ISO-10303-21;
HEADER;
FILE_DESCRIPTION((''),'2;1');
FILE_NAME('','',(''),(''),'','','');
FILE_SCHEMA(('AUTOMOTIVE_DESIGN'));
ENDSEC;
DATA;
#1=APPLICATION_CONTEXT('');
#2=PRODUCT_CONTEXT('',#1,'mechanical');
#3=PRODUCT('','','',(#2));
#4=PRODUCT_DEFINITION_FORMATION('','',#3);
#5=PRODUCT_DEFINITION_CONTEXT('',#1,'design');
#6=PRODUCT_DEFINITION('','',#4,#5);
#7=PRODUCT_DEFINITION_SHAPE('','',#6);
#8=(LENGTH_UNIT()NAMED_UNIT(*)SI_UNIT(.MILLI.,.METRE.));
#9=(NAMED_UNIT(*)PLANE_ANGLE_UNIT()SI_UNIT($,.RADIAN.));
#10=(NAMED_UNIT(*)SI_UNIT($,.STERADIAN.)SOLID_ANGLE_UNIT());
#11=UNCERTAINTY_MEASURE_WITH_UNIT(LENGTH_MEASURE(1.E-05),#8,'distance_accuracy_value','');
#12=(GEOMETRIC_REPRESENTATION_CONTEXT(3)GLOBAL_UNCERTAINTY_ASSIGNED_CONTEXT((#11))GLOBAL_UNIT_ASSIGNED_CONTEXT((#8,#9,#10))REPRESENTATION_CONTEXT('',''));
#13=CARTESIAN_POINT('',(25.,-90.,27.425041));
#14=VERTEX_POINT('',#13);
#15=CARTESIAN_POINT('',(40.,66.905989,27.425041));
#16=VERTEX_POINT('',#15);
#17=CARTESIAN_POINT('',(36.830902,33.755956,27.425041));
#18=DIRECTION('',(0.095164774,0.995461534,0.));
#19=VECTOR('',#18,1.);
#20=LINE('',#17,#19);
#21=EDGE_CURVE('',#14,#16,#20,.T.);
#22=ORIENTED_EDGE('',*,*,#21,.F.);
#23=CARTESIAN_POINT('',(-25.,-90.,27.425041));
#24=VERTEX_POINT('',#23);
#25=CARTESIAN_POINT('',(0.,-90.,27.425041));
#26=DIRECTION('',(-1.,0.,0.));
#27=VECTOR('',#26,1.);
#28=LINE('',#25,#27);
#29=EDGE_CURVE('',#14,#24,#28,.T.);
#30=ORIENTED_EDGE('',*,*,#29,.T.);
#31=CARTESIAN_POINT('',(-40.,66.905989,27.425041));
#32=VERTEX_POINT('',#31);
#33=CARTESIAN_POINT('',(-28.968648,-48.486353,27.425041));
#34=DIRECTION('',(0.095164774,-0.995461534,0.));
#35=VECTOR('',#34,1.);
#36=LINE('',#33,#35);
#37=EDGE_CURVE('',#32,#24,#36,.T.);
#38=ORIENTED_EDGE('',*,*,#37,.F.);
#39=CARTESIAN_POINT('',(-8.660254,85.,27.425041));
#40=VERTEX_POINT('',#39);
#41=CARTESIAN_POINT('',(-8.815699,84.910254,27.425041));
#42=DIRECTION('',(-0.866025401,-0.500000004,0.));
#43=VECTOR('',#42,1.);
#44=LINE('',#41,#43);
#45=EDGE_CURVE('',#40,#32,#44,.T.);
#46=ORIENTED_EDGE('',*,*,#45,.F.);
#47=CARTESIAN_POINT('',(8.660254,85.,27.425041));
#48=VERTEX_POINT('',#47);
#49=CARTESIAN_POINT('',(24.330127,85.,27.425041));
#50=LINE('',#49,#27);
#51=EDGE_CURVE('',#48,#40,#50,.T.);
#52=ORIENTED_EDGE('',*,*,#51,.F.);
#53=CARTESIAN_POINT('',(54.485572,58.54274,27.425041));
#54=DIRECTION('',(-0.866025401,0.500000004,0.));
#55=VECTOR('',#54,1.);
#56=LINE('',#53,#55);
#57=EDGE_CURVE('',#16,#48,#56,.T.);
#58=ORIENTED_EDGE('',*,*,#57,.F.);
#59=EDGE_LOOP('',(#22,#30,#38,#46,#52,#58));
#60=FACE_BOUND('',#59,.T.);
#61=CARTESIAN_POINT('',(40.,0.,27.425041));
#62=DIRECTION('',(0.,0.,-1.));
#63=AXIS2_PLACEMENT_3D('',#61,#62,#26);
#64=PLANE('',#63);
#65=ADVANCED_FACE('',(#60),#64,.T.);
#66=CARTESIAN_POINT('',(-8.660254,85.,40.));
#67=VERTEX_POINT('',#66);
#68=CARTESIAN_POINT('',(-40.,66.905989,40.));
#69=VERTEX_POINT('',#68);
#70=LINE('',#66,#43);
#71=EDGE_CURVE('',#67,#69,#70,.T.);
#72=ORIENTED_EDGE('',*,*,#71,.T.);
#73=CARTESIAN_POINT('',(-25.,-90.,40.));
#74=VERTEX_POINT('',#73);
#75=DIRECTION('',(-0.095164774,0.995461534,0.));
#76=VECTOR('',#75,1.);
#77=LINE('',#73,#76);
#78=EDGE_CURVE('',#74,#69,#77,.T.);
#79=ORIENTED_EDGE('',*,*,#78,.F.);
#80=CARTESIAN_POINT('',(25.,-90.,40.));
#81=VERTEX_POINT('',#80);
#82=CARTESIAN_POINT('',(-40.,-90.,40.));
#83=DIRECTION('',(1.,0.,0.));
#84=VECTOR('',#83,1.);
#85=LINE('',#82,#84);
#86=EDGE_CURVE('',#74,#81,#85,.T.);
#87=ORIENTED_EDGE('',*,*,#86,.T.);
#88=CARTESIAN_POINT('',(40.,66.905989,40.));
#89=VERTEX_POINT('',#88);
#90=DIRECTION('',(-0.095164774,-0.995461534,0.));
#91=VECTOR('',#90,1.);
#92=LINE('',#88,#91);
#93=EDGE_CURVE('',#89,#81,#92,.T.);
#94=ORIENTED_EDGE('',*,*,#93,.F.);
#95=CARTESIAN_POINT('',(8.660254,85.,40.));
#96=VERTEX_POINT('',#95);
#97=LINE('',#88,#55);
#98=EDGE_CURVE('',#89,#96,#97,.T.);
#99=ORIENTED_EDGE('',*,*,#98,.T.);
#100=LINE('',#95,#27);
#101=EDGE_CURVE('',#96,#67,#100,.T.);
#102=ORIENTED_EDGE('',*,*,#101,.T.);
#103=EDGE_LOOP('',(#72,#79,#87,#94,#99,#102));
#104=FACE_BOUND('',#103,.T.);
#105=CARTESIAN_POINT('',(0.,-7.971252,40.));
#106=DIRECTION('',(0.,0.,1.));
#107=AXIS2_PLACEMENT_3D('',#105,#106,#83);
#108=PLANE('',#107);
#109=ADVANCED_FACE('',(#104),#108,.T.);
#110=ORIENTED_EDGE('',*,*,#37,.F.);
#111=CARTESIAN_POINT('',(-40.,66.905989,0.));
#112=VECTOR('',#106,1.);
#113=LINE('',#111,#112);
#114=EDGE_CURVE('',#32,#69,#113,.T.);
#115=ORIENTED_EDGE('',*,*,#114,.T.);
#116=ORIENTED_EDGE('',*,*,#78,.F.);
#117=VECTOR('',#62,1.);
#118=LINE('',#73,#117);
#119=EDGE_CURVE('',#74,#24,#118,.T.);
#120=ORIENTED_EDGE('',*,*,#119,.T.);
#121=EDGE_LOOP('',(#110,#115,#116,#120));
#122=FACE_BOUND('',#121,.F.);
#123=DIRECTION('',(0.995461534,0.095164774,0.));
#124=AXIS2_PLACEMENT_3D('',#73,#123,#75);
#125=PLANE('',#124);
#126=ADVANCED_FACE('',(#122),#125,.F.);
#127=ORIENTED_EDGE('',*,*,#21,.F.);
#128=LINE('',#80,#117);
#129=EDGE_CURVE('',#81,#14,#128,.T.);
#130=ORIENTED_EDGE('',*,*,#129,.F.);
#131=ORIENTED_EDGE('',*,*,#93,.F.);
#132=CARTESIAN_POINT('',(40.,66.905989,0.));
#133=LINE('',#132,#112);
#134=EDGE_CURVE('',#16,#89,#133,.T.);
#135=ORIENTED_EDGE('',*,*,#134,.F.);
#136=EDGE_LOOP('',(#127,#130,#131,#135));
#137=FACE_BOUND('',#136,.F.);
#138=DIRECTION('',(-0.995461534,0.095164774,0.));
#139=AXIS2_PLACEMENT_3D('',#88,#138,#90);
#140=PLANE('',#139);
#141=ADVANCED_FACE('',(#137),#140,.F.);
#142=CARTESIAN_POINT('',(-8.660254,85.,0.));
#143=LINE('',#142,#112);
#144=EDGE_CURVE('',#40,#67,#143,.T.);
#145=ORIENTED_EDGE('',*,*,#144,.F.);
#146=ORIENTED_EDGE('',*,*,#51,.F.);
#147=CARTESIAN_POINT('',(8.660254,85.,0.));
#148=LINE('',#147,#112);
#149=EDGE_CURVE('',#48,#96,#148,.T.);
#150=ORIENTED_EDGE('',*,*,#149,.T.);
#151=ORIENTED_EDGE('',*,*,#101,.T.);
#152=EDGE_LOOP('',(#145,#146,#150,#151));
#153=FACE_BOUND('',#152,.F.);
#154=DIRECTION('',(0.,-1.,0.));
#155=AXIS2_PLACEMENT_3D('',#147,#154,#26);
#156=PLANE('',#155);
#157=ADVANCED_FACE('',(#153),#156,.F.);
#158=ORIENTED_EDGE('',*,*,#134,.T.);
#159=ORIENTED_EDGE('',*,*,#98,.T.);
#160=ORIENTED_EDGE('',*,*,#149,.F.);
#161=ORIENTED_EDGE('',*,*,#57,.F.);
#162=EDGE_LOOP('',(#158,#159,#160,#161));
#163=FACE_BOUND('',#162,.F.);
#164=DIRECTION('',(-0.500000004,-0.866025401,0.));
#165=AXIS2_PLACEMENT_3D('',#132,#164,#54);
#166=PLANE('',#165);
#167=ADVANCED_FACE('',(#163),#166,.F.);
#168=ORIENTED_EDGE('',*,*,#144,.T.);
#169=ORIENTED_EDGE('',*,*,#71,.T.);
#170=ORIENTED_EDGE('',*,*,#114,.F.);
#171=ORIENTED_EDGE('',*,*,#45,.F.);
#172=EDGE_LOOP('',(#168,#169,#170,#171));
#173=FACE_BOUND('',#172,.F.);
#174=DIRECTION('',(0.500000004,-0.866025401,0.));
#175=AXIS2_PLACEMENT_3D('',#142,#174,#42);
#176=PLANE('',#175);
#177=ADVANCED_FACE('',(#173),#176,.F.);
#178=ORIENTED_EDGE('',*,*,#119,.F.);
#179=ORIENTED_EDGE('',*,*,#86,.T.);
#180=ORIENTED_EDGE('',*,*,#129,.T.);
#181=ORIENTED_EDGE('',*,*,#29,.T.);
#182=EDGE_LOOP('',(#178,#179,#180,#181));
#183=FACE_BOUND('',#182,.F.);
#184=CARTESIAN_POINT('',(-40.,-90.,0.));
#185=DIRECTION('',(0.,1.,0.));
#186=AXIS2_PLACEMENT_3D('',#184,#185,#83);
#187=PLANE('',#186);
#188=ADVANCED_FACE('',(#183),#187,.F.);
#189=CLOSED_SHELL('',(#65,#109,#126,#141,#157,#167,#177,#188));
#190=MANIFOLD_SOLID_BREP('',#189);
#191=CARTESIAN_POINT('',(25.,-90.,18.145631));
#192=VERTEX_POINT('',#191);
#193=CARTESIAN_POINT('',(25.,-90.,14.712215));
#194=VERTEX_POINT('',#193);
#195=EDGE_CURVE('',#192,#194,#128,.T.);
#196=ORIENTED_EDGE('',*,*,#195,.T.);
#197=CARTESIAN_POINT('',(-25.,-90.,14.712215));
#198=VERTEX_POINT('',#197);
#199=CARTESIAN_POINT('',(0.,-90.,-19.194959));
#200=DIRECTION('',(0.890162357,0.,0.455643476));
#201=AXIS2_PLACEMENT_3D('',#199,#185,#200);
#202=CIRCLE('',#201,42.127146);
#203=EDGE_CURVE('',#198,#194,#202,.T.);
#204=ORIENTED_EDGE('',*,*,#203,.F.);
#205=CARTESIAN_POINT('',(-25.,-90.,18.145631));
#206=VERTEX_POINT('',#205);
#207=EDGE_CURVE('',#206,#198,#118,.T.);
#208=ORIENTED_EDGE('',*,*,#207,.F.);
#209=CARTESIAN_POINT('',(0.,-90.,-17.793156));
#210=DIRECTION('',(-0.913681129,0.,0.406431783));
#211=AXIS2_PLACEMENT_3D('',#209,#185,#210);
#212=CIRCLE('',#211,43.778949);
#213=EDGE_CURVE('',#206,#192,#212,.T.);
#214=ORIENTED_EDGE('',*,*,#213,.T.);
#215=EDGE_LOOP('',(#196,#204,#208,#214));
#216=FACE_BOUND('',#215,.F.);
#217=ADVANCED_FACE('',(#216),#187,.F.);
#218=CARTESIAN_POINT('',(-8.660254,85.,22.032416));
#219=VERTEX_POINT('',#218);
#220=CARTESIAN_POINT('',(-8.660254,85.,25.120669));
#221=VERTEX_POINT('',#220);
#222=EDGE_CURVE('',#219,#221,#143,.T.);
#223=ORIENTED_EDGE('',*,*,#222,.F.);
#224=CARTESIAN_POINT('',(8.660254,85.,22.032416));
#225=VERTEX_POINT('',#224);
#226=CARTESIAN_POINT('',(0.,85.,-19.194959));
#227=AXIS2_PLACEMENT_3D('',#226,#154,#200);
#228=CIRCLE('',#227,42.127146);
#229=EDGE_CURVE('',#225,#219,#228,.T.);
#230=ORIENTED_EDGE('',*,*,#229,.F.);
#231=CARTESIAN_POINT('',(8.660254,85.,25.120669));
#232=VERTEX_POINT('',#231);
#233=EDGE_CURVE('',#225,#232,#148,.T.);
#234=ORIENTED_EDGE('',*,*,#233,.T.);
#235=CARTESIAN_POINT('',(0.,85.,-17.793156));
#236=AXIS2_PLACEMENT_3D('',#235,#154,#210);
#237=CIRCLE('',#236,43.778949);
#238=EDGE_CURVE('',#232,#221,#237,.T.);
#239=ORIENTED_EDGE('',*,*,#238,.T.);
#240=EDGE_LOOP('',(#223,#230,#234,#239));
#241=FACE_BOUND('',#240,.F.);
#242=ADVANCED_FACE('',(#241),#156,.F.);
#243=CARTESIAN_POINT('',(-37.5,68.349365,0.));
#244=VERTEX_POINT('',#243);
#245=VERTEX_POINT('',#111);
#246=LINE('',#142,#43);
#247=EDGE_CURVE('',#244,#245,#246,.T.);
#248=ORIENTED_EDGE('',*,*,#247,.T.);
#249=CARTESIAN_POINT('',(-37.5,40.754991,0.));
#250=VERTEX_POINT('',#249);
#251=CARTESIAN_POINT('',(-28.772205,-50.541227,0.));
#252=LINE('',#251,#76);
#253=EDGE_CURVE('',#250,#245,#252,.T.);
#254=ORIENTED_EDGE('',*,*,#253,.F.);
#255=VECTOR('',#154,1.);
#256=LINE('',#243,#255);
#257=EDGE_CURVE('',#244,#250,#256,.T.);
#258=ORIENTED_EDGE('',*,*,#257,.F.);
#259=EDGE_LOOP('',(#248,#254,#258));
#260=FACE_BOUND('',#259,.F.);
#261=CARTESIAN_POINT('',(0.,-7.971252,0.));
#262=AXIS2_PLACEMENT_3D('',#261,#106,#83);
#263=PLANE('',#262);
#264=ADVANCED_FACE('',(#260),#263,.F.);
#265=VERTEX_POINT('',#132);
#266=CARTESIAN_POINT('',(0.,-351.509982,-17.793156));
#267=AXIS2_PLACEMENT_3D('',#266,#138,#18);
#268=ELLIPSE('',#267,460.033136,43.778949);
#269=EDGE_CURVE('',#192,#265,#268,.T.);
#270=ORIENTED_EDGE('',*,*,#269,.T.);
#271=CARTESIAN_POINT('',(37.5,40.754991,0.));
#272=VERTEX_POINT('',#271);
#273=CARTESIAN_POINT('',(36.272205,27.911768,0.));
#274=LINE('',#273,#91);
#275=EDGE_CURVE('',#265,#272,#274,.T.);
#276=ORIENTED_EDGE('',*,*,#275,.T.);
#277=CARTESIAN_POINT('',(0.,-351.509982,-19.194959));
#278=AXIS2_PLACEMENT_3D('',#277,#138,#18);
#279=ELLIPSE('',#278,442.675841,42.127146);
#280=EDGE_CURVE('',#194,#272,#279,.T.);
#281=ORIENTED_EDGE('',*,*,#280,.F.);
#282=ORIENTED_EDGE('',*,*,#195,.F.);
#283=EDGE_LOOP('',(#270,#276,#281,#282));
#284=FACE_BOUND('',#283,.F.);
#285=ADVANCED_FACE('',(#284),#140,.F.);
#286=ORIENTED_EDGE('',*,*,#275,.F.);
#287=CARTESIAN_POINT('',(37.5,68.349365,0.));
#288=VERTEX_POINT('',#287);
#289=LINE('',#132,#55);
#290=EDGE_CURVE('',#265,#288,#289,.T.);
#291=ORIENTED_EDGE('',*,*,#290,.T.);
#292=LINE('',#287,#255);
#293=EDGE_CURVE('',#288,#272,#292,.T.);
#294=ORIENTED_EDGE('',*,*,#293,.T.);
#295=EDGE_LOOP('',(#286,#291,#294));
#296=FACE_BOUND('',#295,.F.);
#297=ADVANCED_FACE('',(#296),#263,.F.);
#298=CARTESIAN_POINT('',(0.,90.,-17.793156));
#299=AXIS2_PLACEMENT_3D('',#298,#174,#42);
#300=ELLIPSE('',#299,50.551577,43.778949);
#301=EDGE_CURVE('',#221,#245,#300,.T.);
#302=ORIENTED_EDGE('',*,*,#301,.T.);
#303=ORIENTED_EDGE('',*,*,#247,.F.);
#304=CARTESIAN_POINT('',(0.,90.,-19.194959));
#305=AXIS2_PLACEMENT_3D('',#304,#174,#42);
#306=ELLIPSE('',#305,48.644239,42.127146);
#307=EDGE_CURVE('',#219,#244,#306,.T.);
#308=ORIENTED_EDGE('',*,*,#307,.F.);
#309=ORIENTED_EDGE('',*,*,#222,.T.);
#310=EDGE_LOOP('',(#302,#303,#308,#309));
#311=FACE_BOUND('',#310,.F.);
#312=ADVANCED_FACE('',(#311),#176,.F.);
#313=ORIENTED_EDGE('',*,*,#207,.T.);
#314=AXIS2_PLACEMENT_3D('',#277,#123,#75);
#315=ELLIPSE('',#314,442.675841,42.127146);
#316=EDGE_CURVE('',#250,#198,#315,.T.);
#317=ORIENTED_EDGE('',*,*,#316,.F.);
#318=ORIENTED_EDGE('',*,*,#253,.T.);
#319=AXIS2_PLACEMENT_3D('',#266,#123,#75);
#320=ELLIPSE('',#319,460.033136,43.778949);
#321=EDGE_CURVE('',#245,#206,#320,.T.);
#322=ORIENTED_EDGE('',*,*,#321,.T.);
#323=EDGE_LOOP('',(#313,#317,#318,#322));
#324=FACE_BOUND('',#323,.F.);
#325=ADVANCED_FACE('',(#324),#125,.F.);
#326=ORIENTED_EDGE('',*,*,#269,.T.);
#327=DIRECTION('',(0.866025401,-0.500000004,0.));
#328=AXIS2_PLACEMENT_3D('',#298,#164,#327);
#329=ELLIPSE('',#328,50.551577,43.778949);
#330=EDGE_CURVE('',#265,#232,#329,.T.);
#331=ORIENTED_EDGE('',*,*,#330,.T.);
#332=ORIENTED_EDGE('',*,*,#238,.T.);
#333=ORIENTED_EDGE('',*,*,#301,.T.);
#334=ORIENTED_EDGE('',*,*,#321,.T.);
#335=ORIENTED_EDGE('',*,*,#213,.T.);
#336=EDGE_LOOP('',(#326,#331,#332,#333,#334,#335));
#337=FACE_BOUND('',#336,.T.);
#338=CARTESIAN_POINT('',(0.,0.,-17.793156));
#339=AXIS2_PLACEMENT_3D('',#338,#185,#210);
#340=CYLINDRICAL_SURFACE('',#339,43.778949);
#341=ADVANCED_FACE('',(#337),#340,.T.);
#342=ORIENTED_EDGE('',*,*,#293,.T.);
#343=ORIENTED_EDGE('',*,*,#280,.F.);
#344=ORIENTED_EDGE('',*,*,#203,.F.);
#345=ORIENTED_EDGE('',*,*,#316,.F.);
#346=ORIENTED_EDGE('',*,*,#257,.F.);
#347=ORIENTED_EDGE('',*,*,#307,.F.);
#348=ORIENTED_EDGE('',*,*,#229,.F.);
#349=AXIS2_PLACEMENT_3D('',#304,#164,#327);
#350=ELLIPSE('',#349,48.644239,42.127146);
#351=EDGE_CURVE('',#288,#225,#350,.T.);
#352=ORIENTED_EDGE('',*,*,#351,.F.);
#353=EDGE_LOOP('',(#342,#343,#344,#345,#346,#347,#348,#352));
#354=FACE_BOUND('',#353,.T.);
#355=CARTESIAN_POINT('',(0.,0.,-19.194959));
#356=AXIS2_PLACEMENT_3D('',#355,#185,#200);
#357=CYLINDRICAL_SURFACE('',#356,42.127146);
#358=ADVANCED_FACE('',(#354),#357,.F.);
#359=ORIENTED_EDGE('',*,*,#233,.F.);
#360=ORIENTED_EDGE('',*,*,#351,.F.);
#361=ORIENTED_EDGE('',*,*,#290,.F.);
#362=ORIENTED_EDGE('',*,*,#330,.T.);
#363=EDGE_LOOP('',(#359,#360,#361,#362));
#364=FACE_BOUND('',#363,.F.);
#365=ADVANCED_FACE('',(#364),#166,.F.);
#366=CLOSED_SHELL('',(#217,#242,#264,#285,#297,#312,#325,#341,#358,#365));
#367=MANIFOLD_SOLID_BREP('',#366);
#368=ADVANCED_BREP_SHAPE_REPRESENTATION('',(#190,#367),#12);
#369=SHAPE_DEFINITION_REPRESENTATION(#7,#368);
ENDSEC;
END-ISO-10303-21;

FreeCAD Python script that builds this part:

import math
import FreeCAD as App
import Part
import Sketcher
Q = App.Units.Quantity


def add_polygon(sketch, points):
    """Adds a closed chain of lines whose ends are joined by coincident constraints."""
    first, n = sketch.GeometryCount, len(points)
    for a, b in zip(points, points[1:] + points[:1]):
        sketch.addGeometry(Part.LineSegment(App.Vector(*a, 0), App.Vector(*b, 0)), False)
    for i in range(n):
        sketch.addConstraint(Sketcher.Constraint("Coincident", first + i, 2, first + (i + 1) % n, 1))

doc = App.newDocument("Part")
body = doc.addObject("PartDesign::Body", "Body")
body.AllowCompound = True

# Sketch on XY plane
sketch1 = body.newObject("Sketcher::SketchObject", "Sketch")
sketch1.AttachmentSupport = (doc.getObject("XY_Plane"), [""])
sketch1.MapMode = "FlatFace"
add_polygon(sketch1, [(-40, -90), (40, -90), (40, 67), (9, 85), (-9, 85), (-40, 67)])  # lines 0-5
sketch1.addConstraint(Sketcher.Constraint("Horizontal", 0))
sketch1.addConstraint(Sketcher.Constraint("Vertical", 1))
sketch1.addConstraint(Sketcher.Constraint("Horizontal", 3))
sketch1.addConstraint(Sketcher.Constraint("Vertical", 5))
sketch1.addConstraint(Sketcher.Constraint("Symmetric", 1, 2, 4, 2, -2))
sketch1.addConstraint(Sketcher.Constraint("Equal", 2, 4))
sketch1.addConstraint(Sketcher.Constraint("DistanceX", 0, 1, 0, 2, 80.0))
sketch1.addConstraint(Sketcher.Constraint("Angle", 2, Q("150 deg")))
sketch1.addConstraint(Sketcher.Constraint("DistanceY", 0, 2, -1, 1, 90.0))
sketch1.addConstraint(Sketcher.Constraint("DistanceY", -1, 1, 2, 2, 85.0))
sketch1.addConstraint(Sketcher.Constraint("DistanceX", 3, 2, 3, 1, 17.320508))
pad1 = body.newObject("PartDesign::Pad", "Pad")
pad1.Profile = sketch1
pad1.Length = 40

# Sketch on XZ plane
sketch2 = body.newObject("Sketcher::SketchObject", "Sketch001")
sketch2.AttachmentSupport = (doc.getObject("XZ_Plane"), [""])
sketch2.MapMode = "FlatFace"
sketch2.addGeometry(Part.LineSegment(App.Vector(-38, 0, 0), App.Vector(38, 0, 0)), False)
sketch2.addGeometry(Part.ArcOfCircle(Part.Circle(App.Vector(0, -19, 0), App.Vector(0, 0, 1), 42), math.radians(27), math.radians(153)), False)
sketch2.addGeometry(Part.ArcOfCircle(Part.Circle(App.Vector(0, -18, 0), App.Vector(0, 0, 1), 44), math.radians(24), math.radians(156)), False)
sketch2.addGeometry(Part.LineSegment(App.Vector(40, 0, 0), App.Vector(40, 27, 0)), False)
sketch2.addGeometry(Part.LineSegment(App.Vector(40, 27, 0), App.Vector(-40, 27, 0)), False)
sketch2.addGeometry(Part.LineSegment(App.Vector(-40, 27, 0), App.Vector(-40, 0, 0)), False)
sketch2.addConstraint(Sketcher.Constraint("Coincident", 0, 1, 1, 2))
sketch2.addConstraint(Sketcher.Constraint("Coincident", 1, 1, 0, 2))
sketch2.addConstraint(Sketcher.Constraint("Coincident", 2, 1, 3, 1))
sketch2.addConstraint(Sketcher.Constraint("Coincident", 3, 2, 4, 1))
sketch2.addConstraint(Sketcher.Constraint("Coincident", 4, 2, 5, 1))
sketch2.addConstraint(Sketcher.Constraint("Coincident", 5, 2, 2, 2))
sketch2.addConstraint(Sketcher.Constraint("Horizontal", 0))
sketch2.addConstraint(Sketcher.Constraint("Vertical", 3))
sketch2.addConstraint(Sketcher.Constraint("Horizontal", 4))
sketch2.addConstraint(Sketcher.Constraint("Vertical", 5))
sketch2.addConstraint(Sketcher.Constraint("Symmetric", 0, 1, 1, 1, -1, 1))
sketch2.addConstraint(Sketcher.Constraint("Symmetric", 2, 1, 5, 2, -1, 1))
sketch2.addConstraint(Sketcher.Constraint("PointOnObject", 2, 3, -2))
sketch2.addConstraint(Sketcher.Constraint("DistanceX", 0, 1, 0, 2, 75.0))
sketch2.addConstraint(Sketcher.Constraint("DistanceX", 4, 2, 4, 1, 80.0))
sketch2.addConstraint(Sketcher.Constraint("Radius", 2, 43.778949))
sketch2.addConstraint(Sketcher.Constraint("DistanceY", 1, 3, 3, 2, 46.62))
sketch2.addConstraint(Sketcher.Constraint("Radius", 1, 42.127146))
pocket1 = body.newObject("PartDesign::Pocket", "Pocket")
pocket1.Profile = sketch2
pocket1.Type = "ThroughAll"

# Sketch on XZ plane
sketch3 = body.newObject("Sketcher::SketchObject", "Sketch002")
sketch3.AttachmentSupport = (doc.getObject("XZ_Plane"), [""])
sketch3.MapMode = "FlatFace"
sketch3.addGeometry(Part.LineSegment(App.Vector(-38, 0, 0), App.Vector(38, 0, 0)), False)
sketch3.addGeometry(Part.ArcOfCircle(Part.Circle(App.Vector(0, -19, 0), App.Vector(0, 0, 1), 42), math.radians(27), math.radians(153)), False)
sketch3.addGeometry(Part.ArcOfCircle(Part.Circle(App.Vector(0, -18, 0), App.Vector(0, 0, 1), 44), math.radians(24), math.radians(156)), False)
sketch3.addGeometry(Part.LineSegment(App.Vector(40, 0, 0), App.Vector(40, 27, 0)), False)
sketch3.addGeometry(Part.LineSegment(App.Vector(40, 27, 0), App.Vector(-40, 27, 0)), False)
sketch3.addGeometry(Part.LineSegment(App.Vector(-40, 27, 0), App.Vector(-40, 0, 0)), False)
sketch3.addConstraint(Sketcher.Constraint("Coincident", 0, 1, 1, 2))
sketch3.addConstraint(Sketcher.Constraint("Coincident", 1, 1, 0, 2))
sketch3.addConstraint(Sketcher.Constraint("Coincident", 2, 1, 3, 1))
sketch3.addConstraint(Sketcher.Constraint("Coincident", 3, 2, 4, 1))
sketch3.addConstraint(Sketcher.Constraint("Coincident", 4, 2, 5, 1))
sketch3.addConstraint(Sketcher.Constraint("Coincident", 5, 2, 2, 2))
sketch3.addConstraint(Sketcher.Constraint("Horizontal", 0))
sketch3.addConstraint(Sketcher.Constraint("Vertical", 3))
sketch3.addConstraint(Sketcher.Constraint("Horizontal", 4))
sketch3.addConstraint(Sketcher.Constraint("Vertical", 5))
sketch3.addConstraint(Sketcher.Constraint("Symmetric", 0, 1, 1, 1, -1, 1))
sketch3.addConstraint(Sketcher.Constraint("Symmetric", 2, 1, 5, 2, -1, 1))
sketch3.addConstraint(Sketcher.Constraint("PointOnObject", 2, 3, -2))
sketch3.addConstraint(Sketcher.Constraint("DistanceX", 0, 1, 0, 2, 75.0))
sketch3.addConstraint(Sketcher.Constraint("DistanceX", 4, 2, 4, 1, 80.0))
sketch3.addConstraint(Sketcher.Constraint("Radius", 2, 43.778949))
sketch3.addConstraint(Sketcher.Constraint("DistanceY", 1, 3, 3, 2, 46.62))
sketch3.addConstraint(Sketcher.Constraint("Radius", 1, 42.127146))
pocket2 = body.newObject("PartDesign::Pocket", "Pocket001")
pocket2.Profile = sketch3
pocket2.Type = "ThroughAll"
pocket2.Reversed = True

# Sketch on XY plane
sketch4 = body.newObject("Sketcher::SketchObject", "Sketch003")
sketch4.AttachmentSupport = (doc.getObject("XY_Plane"), [""])
sketch4.MapMode = "FlatFace"
sketch4.AttachmentOffset = App.Placement(App.Vector(0, 0, 40), App.Rotation())
add_polygon(sketch4, [(-25, -90), (-40, 67), (-40, -90)])  # lines 0-2
add_polygon(sketch4, [(40, 67), (25, -90), (40, -90)])  # lines 3-5
sketch4.addConstraint(Sketcher.Constraint("Vertical", 1))
sketch4.addConstraint(Sketcher.Constraint("Horizontal", 2))
sketch4.addConstraint(Sketcher.Constraint("Horizontal", 4))
sketch4.addConstraint(Sketcher.Constraint("Vertical", 5))
sketch4.addConstraint(Sketcher.Constraint("Symmetric", 2, 2, 3, 2, -2))
sketch4.addConstraint(Sketcher.Constraint("Symmetric", 0, 2, 5, 2, -2))
sketch4.addConstraint(Sketcher.Constraint("DistanceX", 2, 1, 2, 2, 15.0))
sketch4.addConstraint(Sketcher.Constraint("DistanceX", 0, 2, -1, 1, 40.0))
sketch4.addConstraint(Sketcher.Constraint("DistanceY", 1, 2, -1, 1, 90.0))
sketch4.addConstraint(Sketcher.Constraint("DistanceY", 1, 2, 1, 1, 156.905989))
pocket3 = body.newObject("PartDesign::Pocket", "Pocket002")
pocket3.Profile = sketch4
pocket3.Type = "ThroughAll"

doc.recompute()
